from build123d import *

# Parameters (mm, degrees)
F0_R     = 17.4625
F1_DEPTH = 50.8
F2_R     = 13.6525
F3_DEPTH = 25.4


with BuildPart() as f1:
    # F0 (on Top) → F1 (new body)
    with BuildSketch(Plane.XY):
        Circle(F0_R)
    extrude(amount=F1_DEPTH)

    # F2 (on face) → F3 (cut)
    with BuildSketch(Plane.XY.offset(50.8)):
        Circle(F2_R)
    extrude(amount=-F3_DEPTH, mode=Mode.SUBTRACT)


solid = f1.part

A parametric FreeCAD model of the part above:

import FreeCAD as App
import Part
import Sketcher

V = App.Vector
Q = App.Units.Quantity

doc = App.newDocument("Part")
body = doc.addObject("PartDesign::Body", "Body")

# Sketch on XY plane
sketch1 = body.newObject("Sketcher::SketchObject", "Sketch")
sketch1.AttachmentSupport = (doc.getObject("XY_Plane"), [""])
sketch1.MapMode = "FlatFace"
sketch1.addGeometry(Part.Circle(V(0, 0, 0), V(0, 0, 1), 17), False)
sketch1.addConstraint(Sketcher.Constraint("Coincident", 0, 3, -1, 1))
sketch1.addConstraint(Sketcher.Constraint("Diameter", 0, Q("1.375 in")))
pad1 = body.newObject("PartDesign::Pad", "Pad")
pad1.Profile = sketch1
pad1.Length = Q("2 in")

# Sketch on XY plane
sketch2 = body.newObject("Sketcher::SketchObject", "Sketch001")
sketch2.AttachmentSupport = (doc.getObject("XY_Plane"), [""])
sketch2.MapMode = "FlatFace"
sketch2.AttachmentOffset = App.Placement(V(0, 0, 2 * 25.4), App.Rotation())
sketch2.addGeometry(Part.Circle(V(0, 0, 0), V(0, 0, 1), 14), False)
sketch2.addConstraint(Sketcher.Constraint("Coincident", 0, 3, -1, 1))
sketch2.addConstraint(Sketcher.Constraint("Diameter", 0, Q("1.075 in")))
pocket1 = body.newObject("PartDesign::Pocket", "Pocket")
pocket1.Profile = sketch2
pocket1.Length = Q("1 in")

doc.recompute()
